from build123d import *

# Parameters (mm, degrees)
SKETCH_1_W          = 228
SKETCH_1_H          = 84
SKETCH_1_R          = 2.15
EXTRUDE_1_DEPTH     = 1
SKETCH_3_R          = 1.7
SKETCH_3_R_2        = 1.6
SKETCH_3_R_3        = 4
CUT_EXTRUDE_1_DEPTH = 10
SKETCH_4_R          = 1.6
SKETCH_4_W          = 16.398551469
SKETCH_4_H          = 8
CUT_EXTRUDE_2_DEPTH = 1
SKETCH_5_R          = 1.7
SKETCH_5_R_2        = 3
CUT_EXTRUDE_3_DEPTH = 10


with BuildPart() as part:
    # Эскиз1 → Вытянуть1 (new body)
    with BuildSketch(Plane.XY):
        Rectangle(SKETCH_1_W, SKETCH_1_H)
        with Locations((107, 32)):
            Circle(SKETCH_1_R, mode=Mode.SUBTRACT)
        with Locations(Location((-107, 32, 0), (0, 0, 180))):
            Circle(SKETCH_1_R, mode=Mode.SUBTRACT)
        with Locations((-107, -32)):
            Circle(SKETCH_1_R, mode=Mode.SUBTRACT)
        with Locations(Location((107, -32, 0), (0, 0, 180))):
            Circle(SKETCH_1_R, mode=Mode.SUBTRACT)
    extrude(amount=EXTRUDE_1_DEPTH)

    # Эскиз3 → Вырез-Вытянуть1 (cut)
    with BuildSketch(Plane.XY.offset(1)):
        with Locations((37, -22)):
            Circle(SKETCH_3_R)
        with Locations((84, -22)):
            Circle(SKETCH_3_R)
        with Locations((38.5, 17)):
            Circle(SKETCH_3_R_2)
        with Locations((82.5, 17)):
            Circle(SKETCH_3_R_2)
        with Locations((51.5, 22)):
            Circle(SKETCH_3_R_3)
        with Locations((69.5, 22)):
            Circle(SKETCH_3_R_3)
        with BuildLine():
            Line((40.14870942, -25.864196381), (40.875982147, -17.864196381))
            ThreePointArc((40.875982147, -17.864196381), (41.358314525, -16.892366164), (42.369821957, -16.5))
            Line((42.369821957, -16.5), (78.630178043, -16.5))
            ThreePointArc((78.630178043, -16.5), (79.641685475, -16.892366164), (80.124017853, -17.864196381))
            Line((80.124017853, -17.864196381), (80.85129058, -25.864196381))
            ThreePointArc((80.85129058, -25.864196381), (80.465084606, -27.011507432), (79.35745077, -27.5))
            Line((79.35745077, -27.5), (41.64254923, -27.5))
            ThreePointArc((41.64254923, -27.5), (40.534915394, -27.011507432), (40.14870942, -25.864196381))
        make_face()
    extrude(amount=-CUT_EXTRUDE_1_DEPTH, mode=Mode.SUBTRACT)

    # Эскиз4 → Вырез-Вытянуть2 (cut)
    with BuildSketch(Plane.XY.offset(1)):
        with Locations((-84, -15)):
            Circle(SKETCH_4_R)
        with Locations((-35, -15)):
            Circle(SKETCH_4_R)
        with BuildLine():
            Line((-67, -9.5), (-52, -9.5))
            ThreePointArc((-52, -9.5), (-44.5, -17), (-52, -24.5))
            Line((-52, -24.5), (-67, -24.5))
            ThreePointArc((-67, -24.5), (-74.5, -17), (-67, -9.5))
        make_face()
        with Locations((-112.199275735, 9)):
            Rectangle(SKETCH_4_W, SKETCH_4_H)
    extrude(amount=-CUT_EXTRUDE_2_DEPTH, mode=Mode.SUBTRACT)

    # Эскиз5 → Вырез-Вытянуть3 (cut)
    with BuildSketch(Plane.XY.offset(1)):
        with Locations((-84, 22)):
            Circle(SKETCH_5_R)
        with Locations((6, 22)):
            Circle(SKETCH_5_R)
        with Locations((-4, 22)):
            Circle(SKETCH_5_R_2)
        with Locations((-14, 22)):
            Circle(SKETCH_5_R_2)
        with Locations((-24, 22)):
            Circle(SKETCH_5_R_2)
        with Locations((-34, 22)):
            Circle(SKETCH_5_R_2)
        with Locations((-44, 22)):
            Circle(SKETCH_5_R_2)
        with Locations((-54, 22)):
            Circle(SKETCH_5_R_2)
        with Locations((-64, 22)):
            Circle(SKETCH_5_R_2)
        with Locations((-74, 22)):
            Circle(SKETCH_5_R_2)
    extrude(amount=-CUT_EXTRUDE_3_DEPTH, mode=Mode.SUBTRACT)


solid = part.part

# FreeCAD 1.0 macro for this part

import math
import FreeCAD as App
import Part
import Sketcher
from FreeCAD import Vector

doc = App.newDocument("Part")
body = doc.addObject("PartDesign::Body", "Body")

# Sketch on XY plane
sketch1 = body.newObject("Sketcher::SketchObject", "Sketch")
sketch1.AttachmentSupport = (doc.getObject("XY_Plane"), [""])
sketch1.MapMode = "FlatFace"
sketch1.addGeometry([
    Part.LineSegment(Vector(-114, 42, 0), Vector(-114, -42, 0)),  # 0
    Part.LineSegment(Vector(-114, -42, 0), Vector(114, -42, 0)),  # 1
    Part.LineSegment(Vector(114, -42, 0), Vector(114, 42, 0)),  # 2
    Part.LineSegment(Vector(114, 42, 0), Vector(-114, 42, 0)),  # 3
    Part.Circle(Vector(-107, -32, 0), Vector(0, 0, 1), 2.1),  # 4
    Part.Circle(Vector(107, -32, 0), Vector(0, 0, 1), 2.1),  # 5
    Part.Circle(Vector(-107, 32, 0), Vector(0, 0, 1), 2.1),  # 6
    Part.Circle(Vector(107, 32, 0), Vector(0, 0, 1), 2.1),  # 7
], False)
sketch1.addConstraint([
    Sketcher.Constraint("Coincident", 0, 2, 1, 1),
    Sketcher.Constraint("Coincident", 1, 2, 2, 1),
    Sketcher.Constraint("Coincident", 2, 2, 3, 1),
    Sketcher.Constraint("Coincident", 3, 2, 0, 1),
    Sketcher.Constraint("Vertical", 0),
    Sketcher.Constraint("Horizontal", 1),
    Sketcher.Constraint("Vertical", 2),
    Sketcher.Constraint("Horizontal", 3),
    Sketcher.Constraint("Equal", 4, 5),
    Sketcher.Constraint("Equal", 5, 6),
    Sketcher.Constraint("Equal", 6, 7),
    Sketcher.Constraint("Symmetric", 5, 3, 6, 3, -1, 1),
    Sketcher.Constraint("Symmetric", 4, 3, 7, 3, -1, 1),
    Sketcher.Constraint("Symmetric", 0, 2, 2, 2, -1, 1),
    Sketcher.Constraint("Symmetric", 4, 3, 5, 3, -2),
    Sketcher.Constraint("Diameter", 4, 4.3),
    Sketcher.Constraint("DistanceX", 1, 1, 1, 2, 228.0),
    Sketcher.Constraint("DistanceY", 0, 2, 0, 1, 84.0),
    Sketcher.Constraint("DistanceX", 4, 3, -1, 1, 107.0),
    Sketcher.Constraint("DistanceY", 4, 3, -1, 1, 32.0),
])
pad1 = body.newObject("PartDesign::Pad", "Pad")
pad1.Profile = sketch1
pad1.Length = 1

# Sketch on XY plane
sketch2 = body.newObject("Sketcher::SketchObject", "Sketch001")
sketch2.AttachmentSupport = (doc.getObject("XY_Plane"), [""])
sketch2.MapMode = "FlatFace"
sketch2.AttachmentOffset = App.Placement(Vector(0, 0, 1), App.Rotation())
sketch2.addGeometry([
    Part.Circle(Vector(37, -22, 0), Vector(0, 0, 1), 1.7),  # 0
    Part.Circle(Vector(84, -22, 0), Vector(0, 0, 1), 1.7),  # 1
    Part.Circle(Vector(38.5, 17, 0), Vector(0, 0, 1), 1.6),  # 2
    Part.Circle(Vector(82.5, 17, 0), Vector(0, 0, 1), 1.6),  # 3
    Part.Circle(Vector(51.5, 22, 0), Vector(0, 0, 1), 4),  # 4
    Part.Circle(Vector(69.5, 22, 0), Vector(0, 0, 1), 4),  # 5
    Part.LineSegment(Vector(40.9, -17.9, 0), Vector(40.1, -25.9, 0)),  # 6
    Part.ArcOfCircle(Part.Circle(Vector(41.6, -26, 0), Vector(0, 0, 1), 1.5), math.radians(175), math.radians(270)),  # 7
    Part.LineSegment(Vector(41.6, -27.5, 0), Vector(79.4, -27.5, 0)),  # 8
    Part.ArcOfCircle(Part.Circle(Vector(79.4, -26, 0), Vector(0, 0, 1), 1.5), math.radians(-90), math.radians(5)),  # 9
    Part.LineSegment(Vector(80.9, -25.9, 0), Vector(80.1, -17.9, 0)),  # 10
    Part.ArcOfCircle(Part.Circle(Vector(78.6, -18, 0), Vector(0, 0, 1), 1.5), math.radians(5), math.radians(90)),  # 11
    Part.LineSegment(Vector(78.6, -16.5, 0), Vector(42.4, -16.5, 0)),  # 12
    Part.ArcOfCircle(Part.Circle(Vector(42.4, -18, 0), Vector(0, 0, 1), 1.5), math.radians(90), math.radians(175)),  # 13
], False)
sketch2.addConstraint([
    Sketcher.Constraint("Tangent", 6, 2, 7, 1),
    Sketcher.Constraint("Tangent", 7, 2, 8, 1),
    Sketcher.Constraint("Tangent", 8, 2, 9, 1),
    Sketcher.Constraint("Tangent", 9, 2, 10, 1),
    Sketcher.Constraint("Tangent", 10, 2, 11, 1),
    Sketcher.Constraint("Tangent", 11, 2, 12, 1),
    Sketcher.Constraint("Tangent", 12, 2, 13, 1),
    Sketcher.Constraint("Tangent", 13, 2, 6, 1),
    Sketcher.Constraint("Horizontal", 8),
    Sketcher.Constraint("Horizontal", 12),
    Sketcher.Constraint("Equal", 0, 1),
    Sketcher.Constraint("Equal", 2, 3),
    Sketcher.Constraint("Equal", 4, 5),
    Sketcher.Constraint("Equal", 7, 9),
    Sketcher.Constraint("Equal", 9, 11),
    Sketcher.Constraint("Equal", 11, 13),
    Sketcher.Constraint("Horizontal", 0, 3, 1, 3),
    Sketcher.Constraint("Horizontal", 2, 3, 3, 3),
    Sketcher.Constraint("Horizontal", 4, 3, 5, 3),
    Sketcher.Constraint("Horizontal", 6, 2, 9, 2),
    Sketcher.Constraint("Diameter", 4, 8.0),
    Sketcher.Constraint("Diameter", 0, 3.4),
    Sketcher.Constraint("Diameter", 2, 3.2),
    Sketcher.Constraint("Radius", 7, 1.5),
    Sketcher.Constraint("DistanceX", -1, 1, 0, 3, 37.0),
    Sketcher.Constraint("DistanceY", 0, 3, -1, 1, 22.0),
    Sketcher.Constraint("DistanceX", -1, 1, 1, 3, 84.0),
    Sketcher.Constraint("DistanceY", -1, 1, 2, 3, 17.0),
    Sketcher.Constraint("DistanceY", -1, 1, 4, 3, 22.0),
    Sketcher.Constraint("DistanceY", 7, 3, -1, 1, 26.0),
    Sketcher.Constraint("DistanceY", 11, 3, -1, 1, 18.0),
    Sketcher.Constraint("DistanceX", 2, 3, 3, 3, 44.0),
    Sketcher.Constraint("DistanceX", 2, 3, 4, 3, 13.0),
    Sketcher.Constraint("DistanceX", 5, 3, 3, 3, 13.0),
    Sketcher.Constraint("DistanceX", -1, 1, 2, 3, 38.5),
    Sketcher.Constraint("DistanceX", 8, 1, 8, 2, 37.714902),
    Sketcher.Constraint("Distance", 6, 8.03299),
    Sketcher.Constraint("DistanceX", -1, 1, 7, 3, 41.642549),
])
pocket1 = body.newObject("PartDesign::Pocket", "Pocket")
pocket1.Profile = sketch2
pocket1.Length = 10

# Sketch on XY plane
sketch3 = body.newObject("Sketcher::SketchObject", "Sketch002")
sketch3.AttachmentSupport = (doc.getObject("XY_Plane"), [""])
sketch3.MapMode = "FlatFace"
sketch3.AttachmentOffset = App.Placement(Vector(0, 0, 1), App.Rotation())
sketch3.addGeometry([
    Part.Circle(Vector(-84, -15, 0), Vector(0, 0, 1), 1.6),  # 0
    Part.Circle(Vector(-35, -15, 0), Vector(0, 0, 1), 1.6),  # 1
    Part.LineSegment(Vector(-52, -9.5, 0), Vector(-67, -9.5, 0)),  # 2
    Part.ArcOfCircle(Part.Circle(Vector(-67, -17, 0), Vector(0, 0, 1), 7.5), math.radians(90), math.radians(270)),  # 3
    Part.LineSegment(Vector(-67, -24.5, 0), Vector(-52, -24.5, 0)),  # 4
    Part.ArcOfCircle(Part.Circle(Vector(-52, -17, 0), Vector(0, 0, 1), 7.5), math.radians(-90), math.radians(90)),  # 5
    Part.LineSegment(Vector(-120.4, 13, 0), Vector(-120.4, 5, 0)),  # 6
    Part.LineSegment(Vector(-120.4, 5, 0), Vector(-104, 5, 0)),  # 7
    Part.LineSegment(Vector(-104, 5, 0), Vector(-104, 13, 0)),  # 8
    Part.LineSegment(Vector(-104, 13, 0), Vector(-120.4, 13, 0)),  # 9
], False)
sketch3.addConstraint([
    Sketcher.Constraint("Tangent", 2, 2, 3, 1),
    Sketcher.Constraint("Tangent", 3, 2, 4, 1),
    Sketcher.Constraint("Tangent", 4, 2, 5, 1),
    Sketcher.Constraint("Tangent", 5, 2, 2, 1),
    Sketcher.Constraint("Coincident", 6, 2, 7, 1),
    Sketcher.Constraint("Coincident", 7, 2, 8, 1),
    Sketcher.Constraint("Coincident", 8, 2, 9, 1),
    Sketcher.Constraint("Coincident", 9, 2, 6, 1),
    Sketcher.Constraint("Horizontal", 2),
    Sketcher.Constraint("Horizontal", 4),
    Sketcher.Constraint("Vertical", 6),
    Sketcher.Constraint("Horizontal", 7),
    Sketcher.Constraint("Vertical", 8),
    Sketcher.Constraint("Horizontal", 9),
    Sketcher.Constraint("Equal", 0, 1),
    Sketcher.Constraint("Horizontal", 0, 3, 1, 3),
    Sketcher.Constraint("Diameter", 0, 3.2),
    Sketcher.Constraint("Radius", 3, 7.5),
    Sketcher.Constraint("DistanceX", 2, 2, 2, 1, 15.0),
    Sketcher.Constraint("DistanceY", 6, 2, 6, 1, 8.0),
    Sketcher.Constraint("DistanceX", 0, 3, -1, 1, 84.0),
    Sketcher.Constraint("DistanceY", 0, 3, -1, 1, 15.0),
    Sketcher.Constraint("DistanceX", 1, 3, -1, 1, 35.0),
    Sketcher.Constraint("DistanceX", 3, 3, -1, 1, 67.0),
    Sketcher.Constraint("DistanceY", 3, 3, -1, 1, 17.0),
    Sketcher.Constraint("DistanceY", -1, 1, 6, 2, 5.0),
    Sketcher.Constraint("DistanceX", 7, 2, -1, 1, 104.0),
    Sketcher.Constraint("DistanceX", 7, 1, 7, 2, 16.398551),
])
pocket2 = body.newObject("PartDesign::Pocket", "Pocket001")
pocket2.Profile = sketch3
pocket2.Length = 1

# Sketch on XY plane
sketch4 = body.newObject("Sketcher::SketchObject", "Sketch003")
sketch4.AttachmentSupport = (doc.getObject("XY_Plane"), [""])
sketch4.MapMode = "FlatFace"
sketch4.AttachmentOffset = App.Placement(Vector(0, 0, 1), App.Rotation())
sketch4.addGeometry([
    Part.Circle(Vector(-84, 22, 0), Vector(0, 0, 1), 1.7),  # 0
    Part.Circle(Vector(6, 22, 0), Vector(0, 0, 1), 1.7),  # 1
    Part.Circle(Vector(-4, 22, 0), Vector(0, 0, 1), 3),  # 2
    Part.Circle(Vector(-14, 22, 0), Vector(0, 0, 1), 3),  # 3
    Part.Circle(Vector(-24, 22, 0), Vector(0, 0, 1), 3),  # 4
    Part.Circle(Vector(-34, 22, 0), Vector(0, 0, 1), 3),  # 5
    Part.Circle(Vector(-44, 22, 0), Vector(0, 0, 1), 3),  # 6
    Part.Circle(Vector(-54, 22, 0), Vector(0, 0, 1), 3),  # 7
    Part.Circle(Vector(-64, 22, 0), Vector(0, 0, 1), 3),  # 8
    Part.Circle(Vector(-74, 22, 0), Vector(0, 0, 1), 3),  # 9
], False)
sketch4.addConstraint([
    Sketcher.Constraint("Equal", 0, 1),
    Sketcher.Constraint("Equal", 2, 3),
    Sketcher.Constraint("Equal", 3, 4),
    Sketcher.Constraint("Equal", 4, 5),
    Sketcher.Constraint("Equal", 5, 6),
    Sketcher.Constraint("Equal", 6, 7),
    Sketcher.Constraint("Equal", 7, 8),
    Sketcher.Constraint("Equal", 8, 9),
    Sketcher.Constraint("Horizontal", 0, 3, 1, 3),
    Sketcher.Constraint("Horizontal", 1, 3, 2, 3),
    Sketcher.Constraint("Horizontal", 2, 3, 3, 3),
    Sketcher.Constraint("Horizontal", 3, 3, 4, 3),
    Sketcher.Constraint("Horizontal", 4, 3, 5, 3),
    Sketcher.Constraint("Horizontal", 5, 3, 6, 3),
    Sketcher.Constraint("Horizontal", 6, 3, 7, 3),
    Sketcher.Constraint("Horizontal", 7, 3, 8, 3),
    Sketcher.Constraint("Horizontal", 8, 3, 9, 3),
    Sketcher.Constraint("Diameter", 2, 6.0),
    Sketcher.Constraint("Diameter", 0, 3.4),
    Sketcher.Constraint("DistanceX", 0, 3, -1, 1, 84.0),
    Sketcher.Constraint("DistanceY", -1, 1, 0, 3, 22.0),
    Sketcher.Constraint("DistanceX", -1, 1, 1, 3, 6.0),
    Sketcher.Constraint("DistanceX", 2, 3, -1, 1, 4.0),
    Sketcher.Constraint("DistanceX", 3, 3, -1, 1, 14.0),
    Sketcher.Constraint("DistanceX", 4, 3, -1, 1, 24.0),
    Sketcher.Constraint("DistanceX", 5, 3, -1, 1, 34.0),
    Sketcher.Constraint("DistanceX", 6, 3, -1, 1, 44.0),
    Sketcher.Constraint("DistanceX", 7, 3, -1, 1, 54.0),
    Sketcher.Constraint("DistanceX", 8, 3, -1, 1, 64.0),
    Sketcher.Constraint("DistanceX", 9, 3, -1, 1, 74.0),
])
pocket3 = body.newObject("PartDesign::Pocket", "Pocket002")
pocket3.Profile = sketch4
pocket3.Length = 10

doc.recompute()
